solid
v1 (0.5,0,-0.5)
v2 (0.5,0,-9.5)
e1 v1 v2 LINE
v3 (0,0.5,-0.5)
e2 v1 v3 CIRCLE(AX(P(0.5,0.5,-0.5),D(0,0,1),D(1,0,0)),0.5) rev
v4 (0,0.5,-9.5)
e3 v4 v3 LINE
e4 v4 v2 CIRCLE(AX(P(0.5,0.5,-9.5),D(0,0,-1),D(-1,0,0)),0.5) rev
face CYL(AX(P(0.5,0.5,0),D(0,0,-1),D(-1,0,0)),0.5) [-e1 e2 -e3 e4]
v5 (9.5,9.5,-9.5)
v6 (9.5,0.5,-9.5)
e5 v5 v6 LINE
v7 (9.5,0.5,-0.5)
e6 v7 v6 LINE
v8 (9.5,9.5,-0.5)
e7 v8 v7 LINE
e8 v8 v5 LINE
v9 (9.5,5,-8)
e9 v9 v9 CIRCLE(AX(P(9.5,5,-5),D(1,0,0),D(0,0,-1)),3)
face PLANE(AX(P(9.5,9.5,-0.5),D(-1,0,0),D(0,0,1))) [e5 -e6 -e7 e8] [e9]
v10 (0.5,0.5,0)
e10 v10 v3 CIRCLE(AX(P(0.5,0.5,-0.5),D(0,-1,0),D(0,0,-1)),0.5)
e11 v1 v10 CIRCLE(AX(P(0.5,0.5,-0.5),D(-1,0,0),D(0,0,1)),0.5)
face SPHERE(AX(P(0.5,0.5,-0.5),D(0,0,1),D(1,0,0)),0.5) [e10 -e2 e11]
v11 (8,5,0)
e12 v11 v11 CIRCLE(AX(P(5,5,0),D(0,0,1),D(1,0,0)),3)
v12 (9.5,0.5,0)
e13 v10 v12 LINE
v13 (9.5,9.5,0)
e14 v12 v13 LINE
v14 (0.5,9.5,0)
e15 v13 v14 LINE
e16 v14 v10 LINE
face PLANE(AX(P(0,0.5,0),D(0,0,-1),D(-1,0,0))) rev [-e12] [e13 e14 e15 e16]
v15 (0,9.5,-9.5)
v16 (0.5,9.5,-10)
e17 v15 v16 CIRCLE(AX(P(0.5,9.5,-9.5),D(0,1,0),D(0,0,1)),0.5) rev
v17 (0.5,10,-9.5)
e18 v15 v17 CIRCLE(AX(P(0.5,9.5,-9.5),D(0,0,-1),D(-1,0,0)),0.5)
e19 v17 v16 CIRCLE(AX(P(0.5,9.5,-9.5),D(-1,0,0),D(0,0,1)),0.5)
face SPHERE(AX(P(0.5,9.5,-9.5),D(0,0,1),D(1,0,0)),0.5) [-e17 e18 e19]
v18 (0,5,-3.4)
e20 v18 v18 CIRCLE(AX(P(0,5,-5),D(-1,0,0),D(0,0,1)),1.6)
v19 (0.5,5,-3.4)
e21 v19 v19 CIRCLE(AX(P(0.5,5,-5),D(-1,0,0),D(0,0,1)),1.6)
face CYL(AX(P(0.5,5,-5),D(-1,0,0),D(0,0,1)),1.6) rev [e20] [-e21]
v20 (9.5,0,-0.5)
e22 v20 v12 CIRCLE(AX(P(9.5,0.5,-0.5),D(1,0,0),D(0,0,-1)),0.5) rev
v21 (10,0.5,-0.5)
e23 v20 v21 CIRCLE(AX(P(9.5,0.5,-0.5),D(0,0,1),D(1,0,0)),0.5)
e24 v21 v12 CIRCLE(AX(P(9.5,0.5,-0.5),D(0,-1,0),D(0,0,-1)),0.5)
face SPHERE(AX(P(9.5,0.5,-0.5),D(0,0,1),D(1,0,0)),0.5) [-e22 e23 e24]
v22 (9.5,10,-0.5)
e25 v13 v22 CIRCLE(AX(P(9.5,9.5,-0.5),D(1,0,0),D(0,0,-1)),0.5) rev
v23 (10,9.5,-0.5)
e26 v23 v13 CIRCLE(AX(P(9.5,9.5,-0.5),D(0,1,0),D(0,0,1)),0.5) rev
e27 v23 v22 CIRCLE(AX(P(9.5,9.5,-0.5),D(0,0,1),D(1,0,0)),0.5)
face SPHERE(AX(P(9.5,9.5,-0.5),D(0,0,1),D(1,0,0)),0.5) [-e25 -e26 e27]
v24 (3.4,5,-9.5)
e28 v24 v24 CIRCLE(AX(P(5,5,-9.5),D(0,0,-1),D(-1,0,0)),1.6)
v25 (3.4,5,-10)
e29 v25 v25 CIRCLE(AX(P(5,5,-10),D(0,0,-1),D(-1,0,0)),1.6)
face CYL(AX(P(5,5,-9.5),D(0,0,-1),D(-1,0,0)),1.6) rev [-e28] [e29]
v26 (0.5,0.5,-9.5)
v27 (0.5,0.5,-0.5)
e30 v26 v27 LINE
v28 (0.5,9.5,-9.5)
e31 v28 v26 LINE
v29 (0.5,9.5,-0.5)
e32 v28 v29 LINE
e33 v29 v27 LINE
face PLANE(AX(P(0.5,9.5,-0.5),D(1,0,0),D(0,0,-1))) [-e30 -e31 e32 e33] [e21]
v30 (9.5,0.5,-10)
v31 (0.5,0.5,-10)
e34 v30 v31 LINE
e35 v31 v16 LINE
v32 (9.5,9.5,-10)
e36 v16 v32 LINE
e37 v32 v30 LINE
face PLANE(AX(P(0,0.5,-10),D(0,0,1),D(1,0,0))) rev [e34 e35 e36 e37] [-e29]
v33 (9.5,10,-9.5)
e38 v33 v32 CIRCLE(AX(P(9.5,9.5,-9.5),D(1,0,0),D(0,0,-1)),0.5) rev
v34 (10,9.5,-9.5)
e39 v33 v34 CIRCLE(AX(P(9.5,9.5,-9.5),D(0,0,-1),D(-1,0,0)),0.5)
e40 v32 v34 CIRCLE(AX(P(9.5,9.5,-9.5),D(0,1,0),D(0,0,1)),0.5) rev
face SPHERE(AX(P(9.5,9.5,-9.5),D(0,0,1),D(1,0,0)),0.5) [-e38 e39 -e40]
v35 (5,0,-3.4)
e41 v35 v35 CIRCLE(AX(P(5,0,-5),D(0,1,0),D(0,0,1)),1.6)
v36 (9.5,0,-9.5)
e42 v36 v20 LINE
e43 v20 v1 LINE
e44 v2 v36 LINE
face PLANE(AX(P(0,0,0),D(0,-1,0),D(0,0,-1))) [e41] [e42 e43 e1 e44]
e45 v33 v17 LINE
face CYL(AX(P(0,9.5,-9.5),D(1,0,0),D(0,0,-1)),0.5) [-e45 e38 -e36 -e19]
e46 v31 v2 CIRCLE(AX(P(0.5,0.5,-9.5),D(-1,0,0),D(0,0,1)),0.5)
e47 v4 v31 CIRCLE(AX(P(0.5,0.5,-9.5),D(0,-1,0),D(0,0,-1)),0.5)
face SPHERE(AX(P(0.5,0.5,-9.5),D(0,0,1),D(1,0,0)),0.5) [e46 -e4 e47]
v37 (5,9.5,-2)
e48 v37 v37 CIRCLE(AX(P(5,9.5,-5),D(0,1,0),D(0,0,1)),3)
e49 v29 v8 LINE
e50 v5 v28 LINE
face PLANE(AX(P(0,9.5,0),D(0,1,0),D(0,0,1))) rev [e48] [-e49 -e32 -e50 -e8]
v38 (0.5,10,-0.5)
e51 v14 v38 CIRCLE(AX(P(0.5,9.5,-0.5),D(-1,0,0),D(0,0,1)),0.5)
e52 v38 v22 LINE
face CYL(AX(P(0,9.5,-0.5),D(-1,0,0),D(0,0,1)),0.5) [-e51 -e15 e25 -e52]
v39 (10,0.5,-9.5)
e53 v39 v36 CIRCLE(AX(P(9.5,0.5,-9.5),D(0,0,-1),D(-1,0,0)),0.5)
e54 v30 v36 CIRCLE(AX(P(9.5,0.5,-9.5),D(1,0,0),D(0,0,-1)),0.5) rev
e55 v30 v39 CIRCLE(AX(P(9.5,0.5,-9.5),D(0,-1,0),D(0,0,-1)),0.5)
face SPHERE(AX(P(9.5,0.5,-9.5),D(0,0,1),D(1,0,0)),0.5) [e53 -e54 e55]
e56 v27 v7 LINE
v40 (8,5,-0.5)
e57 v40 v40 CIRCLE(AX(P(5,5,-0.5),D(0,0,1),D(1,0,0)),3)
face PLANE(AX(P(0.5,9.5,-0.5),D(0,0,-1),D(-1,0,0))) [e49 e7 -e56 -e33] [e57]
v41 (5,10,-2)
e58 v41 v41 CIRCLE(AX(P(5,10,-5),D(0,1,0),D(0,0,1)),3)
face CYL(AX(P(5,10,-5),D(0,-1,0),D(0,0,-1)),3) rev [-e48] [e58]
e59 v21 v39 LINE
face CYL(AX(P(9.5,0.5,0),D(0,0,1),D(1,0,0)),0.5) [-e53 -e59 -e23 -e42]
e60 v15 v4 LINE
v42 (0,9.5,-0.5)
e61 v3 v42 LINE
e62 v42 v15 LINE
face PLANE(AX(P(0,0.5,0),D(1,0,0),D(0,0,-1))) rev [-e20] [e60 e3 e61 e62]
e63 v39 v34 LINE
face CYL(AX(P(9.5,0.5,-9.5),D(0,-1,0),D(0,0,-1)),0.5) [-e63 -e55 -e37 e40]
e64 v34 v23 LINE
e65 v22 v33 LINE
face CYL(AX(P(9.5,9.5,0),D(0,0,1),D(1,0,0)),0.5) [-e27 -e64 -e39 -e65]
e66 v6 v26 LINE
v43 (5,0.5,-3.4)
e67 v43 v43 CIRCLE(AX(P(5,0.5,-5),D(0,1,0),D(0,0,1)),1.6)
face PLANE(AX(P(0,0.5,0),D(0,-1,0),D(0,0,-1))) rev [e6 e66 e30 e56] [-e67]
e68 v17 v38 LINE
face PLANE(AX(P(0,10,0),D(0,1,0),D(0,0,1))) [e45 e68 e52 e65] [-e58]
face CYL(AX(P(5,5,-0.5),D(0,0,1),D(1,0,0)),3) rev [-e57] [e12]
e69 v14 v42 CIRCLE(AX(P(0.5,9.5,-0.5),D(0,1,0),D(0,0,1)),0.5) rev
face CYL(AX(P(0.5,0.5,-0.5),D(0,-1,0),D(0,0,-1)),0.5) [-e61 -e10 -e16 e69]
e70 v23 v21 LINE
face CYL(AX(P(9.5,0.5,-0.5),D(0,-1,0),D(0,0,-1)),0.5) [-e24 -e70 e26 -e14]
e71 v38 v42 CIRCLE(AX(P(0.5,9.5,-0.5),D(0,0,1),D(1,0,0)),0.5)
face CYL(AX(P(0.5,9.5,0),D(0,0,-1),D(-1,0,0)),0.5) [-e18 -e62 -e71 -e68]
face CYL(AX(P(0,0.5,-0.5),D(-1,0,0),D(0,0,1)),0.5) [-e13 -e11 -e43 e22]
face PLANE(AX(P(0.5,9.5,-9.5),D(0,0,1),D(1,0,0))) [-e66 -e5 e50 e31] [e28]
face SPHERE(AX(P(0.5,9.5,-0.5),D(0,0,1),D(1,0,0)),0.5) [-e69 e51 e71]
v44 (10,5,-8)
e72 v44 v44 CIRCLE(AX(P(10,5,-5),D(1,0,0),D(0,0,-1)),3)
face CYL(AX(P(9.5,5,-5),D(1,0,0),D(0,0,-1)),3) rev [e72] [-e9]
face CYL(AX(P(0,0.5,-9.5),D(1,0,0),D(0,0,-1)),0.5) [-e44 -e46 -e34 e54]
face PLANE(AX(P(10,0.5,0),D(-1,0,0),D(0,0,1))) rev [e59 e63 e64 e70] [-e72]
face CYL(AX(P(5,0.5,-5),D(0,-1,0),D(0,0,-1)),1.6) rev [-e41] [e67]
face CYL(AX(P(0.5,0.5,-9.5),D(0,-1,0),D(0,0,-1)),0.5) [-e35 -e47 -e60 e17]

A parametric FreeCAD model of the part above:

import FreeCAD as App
import Part
import Sketcher

V = App.Vector
Q = App.Units.Quantity


def edges_at(feature, points):
    """Names of the edges that pass closest to the given points."""
    edges = feature.Shape.Edges
    near = lambda p: min(range(len(edges)), key=lambda i: edges[i].distToShape(Part.Vertex(*p))[0])
    return sorted({f"Edge{near(p) + 1}" for p in points})


def add_polygon(sketch, points):
    """Adds a closed chain of lines whose ends are joined by coincident constraints."""
    first, n = sketch.GeometryCount, len(points)
    for a, b in zip(points, points[1:] + points[:1]):
        sketch.addGeometry(Part.LineSegment(App.Vector(*a, 0), App.Vector(*b, 0)), False)
    for i in range(n):
        sketch.addConstraint(Sketcher.Constraint("Coincident", first + i, 2, first + (i + 1) % n, 1))

doc = App.newDocument("Part")
body = doc.addObject("PartDesign::Body", "Body")

sketch1 = body.newObject("Sketcher::SketchObject", "Sketch")
sketch1.AttachmentSupport = (doc.getObject("XZ_Plane"), [""])
sketch1.MapMode = "FlatFace"
add_polygon(sketch1, [(0, -10), (0, 0), (10, 0), (10, -10)])
sketch1.addGeometry(Part.Circle(V(5, -5, 0), V(0, 0, 1), 1.6), False)
sketch1.addConstraint(Sketcher.Constraint("Vertical", 0))
sketch1.addConstraint(Sketcher.Constraint("Horizontal", 1))
sketch1.addConstraint(Sketcher.Constraint("Vertical", 2))
sketch1.addConstraint(Sketcher.Constraint("Horizontal", 3))
sketch1.addConstraint(Sketcher.Constraint("Coincident", 0, 2, -1, 1))
sketch1.addConstraint(Sketcher.Constraint("Equal", 3, 0))
sketch1.addConstraint(Sketcher.Constraint("Diameter", 4, Q("3.2 mm")))
sketch1.addConstraint(Sketcher.Constraint("DistanceX", 1, 1, 1, 2, Q("10 mm")))
sketch1.addConstraint(Sketcher.Constraint("DistanceX", -1, 1, 4, 3, Q("5 mm")))
sketch1.addConstraint(Sketcher.Constraint("DistanceY", 4, 3, -1, 1, Q("5 mm")))
pad1 = body.newObject("PartDesign::Pad", "Pad")
pad1.Profile = sketch1
pad1.Length = 0.5
pad1.Reversed = True

sketch2 = body.newObject("Sketcher::SketchObject", "Sketch001")
sketch2.AttachmentSupport = (doc.getObject("XZ_Plane"), [""])
sketch2.MapMode = "FlatFace"
sketch2.AttachmentOffset = App.Placement(V(0, 0, -0.5), App.Rotation())
add_polygon(sketch2, [(0, -10), (0, 0), (10, 0), (10, -10)])
add_polygon(sketch2, [(10, 0), (0, 0), (0, -10), (10, -10)])
sketch2.addConstraint(Sketcher.Constraint("Vertical", 0))
sketch2.addConstraint(Sketcher.Constraint("Horizontal", 1))
sketch2.addConstraint(Sketcher.Constraint("Vertical", 2))
sketch2.addConstraint(Sketcher.Constraint("Horizontal", 3))
sketch2.addConstraint(Sketcher.Constraint("Horizontal", 4))
sketch2.addConstraint(Sketcher.Constraint("Vertical", 5))
sketch2.addConstraint(Sketcher.Constraint("Horizontal", 6))
sketch2.addConstraint(Sketcher.Constraint("Vertical", 7))
sketch2.addConstraint(Sketcher.Constraint("Coincident", 0, 2, -1, 1))
sketch2.addConstraint(Sketcher.Constraint("Equal", 3, 0))
sketch2.addConstraint(Sketcher.Constraint("Equal", 6, 5))
sketch2.addConstraint(Sketcher.Constraint("DistanceX", 1, 1, 1, 2, Q("10 mm")))
sketch2.addConstraint(Sketcher.Constraint("DistanceX", 4, 2, 4, 1, Q("9 mm")))
sketch2.addConstraint(Sketcher.Constraint("DistanceX", -1, 1, 4, 2, Q("0.5 mm")))
sketch2.addConstraint(Sketcher.Constraint("DistanceY", 4, 2, -1, 1, Q("0.5 mm")))
pad2 = body.newObject("PartDesign::Pad", "Pad001")
pad2.Profile = sketch2
pad2.Length = 9
pad2.Reversed = True

sketch3 = body.newObject("Sketcher::SketchObject", "Sketch002")
sketch3.AttachmentSupport = (doc.getObject("XZ_Plane"), [""])
sketch3.MapMode = "FlatFace"
sketch3.AttachmentOffset = App.Placement(V(0, 0, -9.5), App.Rotation())
add_polygon(sketch3, [(0, -10), (0, 0), (10, 0), (10, -10)])
sketch3.addGeometry(Part.Circle(V(5, -5, 0), V(0, 0, 1), 3), False)
sketch3.addConstraint(Sketcher.Constraint("Vertical", 0))
sketch3.addConstraint(Sketcher.Constraint("Horizontal", 1))
sketch3.addConstraint(Sketcher.Constraint("Vertical", 2))
sketch3.addConstraint(Sketcher.Constraint("Horizontal", 3))
sketch3.addConstraint(Sketcher.Constraint("Coincident", 0, 2, -1, 1))
sketch3.addConstraint(Sketcher.Constraint("Equal", 3, 0))
sketch3.addConstraint(Sketcher.Constraint("Diameter", 4, Q("6 mm")))
sketch3.addConstraint(Sketcher.Constraint("DistanceX", 1, 1, 1, 2, Q("10 mm")))
sketch3.addConstraint(Sketcher.Constraint("DistanceX", -1, 1, 4, 3, Q("5 mm")))
sketch3.addConstraint(Sketcher.Constraint("DistanceY", 4, 3, -1, 1, Q("5 mm")))
pad3 = body.newObject("PartDesign::Pad", "Pad002")
pad3.Profile = sketch3
pad3.Length = 0.5
pad3.Reversed = True

sketch4 = body.newObject("Sketcher::SketchObject", "Sketch003")
sketch4.AttachmentSupport = (doc.getObject("YZ_Plane"), [""])
sketch4.MapMode = "FlatFace"
sketch4.AttachmentOffset = App.Placement(V(0, 0, 10), App.Rotation())
sketch4.addGeometry(Part.Circle(V(5, -5, 0), V(0, 0, 1), 3), False)
sketch4.addConstraint(Sketcher.Constraint("Diameter", 0, Q("6 mm")))
sketch4.addConstraint(Sketcher.Constraint("DistanceX", -1, 1, 0, 3, Q("5 mm")))
sketch4.addConstraint(Sketcher.Constraint("DistanceY", 0, 3, -1, 1, Q("5 mm")))
pocket1 = body.newObject("PartDesign::Pocket", "Pocket")
pocket1.Profile = sketch4
pocket1.Length = 0.5

sketch5 = body.newObject("Sketcher::SketchObject", "Sketch004")
sketch5.AttachmentSupport = (doc.getObject("XY_Plane"), [""])
sketch5.MapMode = "FlatFace"
sketch5.addGeometry(Part.Circle(V(5, 5, 0), V(0, 0, 1), 3), False)
sketch5.addConstraint(Sketcher.Constraint("Diameter", 0, Q("6 mm")))
sketch5.addConstraint(Sketcher.Constraint("DistanceX", -1, 1, 0, 3, Q("5 mm")))
sketch5.addConstraint(Sketcher.Constraint("DistanceY", -1, 1, 0, 3, Q("5 mm")))
pocket2 = body.newObject("PartDesign::Pocket", "Pocket001")
pocket2.Profile = sketch5
pocket2.Length = 0.5

sketch6 = body.newObject("Sketcher::SketchObject", "Sketch005")
sketch6.AttachmentSupport = (doc.getObject("YZ_Plane"), [""])
sketch6.MapMode = "FlatFace"
sketch6.addGeometry(Part.Circle(V(5, -5, 0), V(0, 0, 1), 1.6), False)
sketch6.addConstraint(Sketcher.Constraint("Diameter", 0, Q("3.2 mm")))
sketch6.addConstraint(Sketcher.Constraint("DistanceX", -1, 1, 0, 3, Q("5 mm")))
sketch6.addConstraint(Sketcher.Constraint("DistanceY", 0, 3, -1, 1, Q("5 mm")))
pocket3 = body.newObject("PartDesign::Pocket", "Pocket002")
pocket3.Profile = sketch6
pocket3.Length = 0.5
pocket3.Reversed = True

sketch7 = body.newObject("Sketcher::SketchObject", "Sketch006")
sketch7.AttachmentSupport = (doc.getObject("XY_Plane"), [""])
sketch7.MapMode = "FlatFace"
sketch7.AttachmentOffset = App.Placement(V(0, 0, -10), App.Rotation())
sketch7.addGeometry(Part.Circle(V(5, 5, 0), V(0, 0, 1), 1.6), False)
sketch7.addConstraint(Sketcher.Constraint("Diameter", 0, Q("3.2 mm")))
sketch7.addConstraint(Sketcher.Constraint("DistanceX", -1, 1, 0, 3, Q("5 mm")))
sketch7.addConstraint(Sketcher.Constraint("DistanceY", -1, 1, 0, 3, Q("5 mm")))
pocket4 = body.newObject("PartDesign::Pocket", "Pocket003")
pocket4.Profile = sketch7
pocket4.Length = 0.5
pocket4.Reversed = True
doc.recompute()

fillet = body.newObject("PartDesign::Fillet", "Fillet")
fillet.Base = (pocket4, edges_at(pocket4, [
    (0, 10, -5),
    (5, 10, 0),
    (10, 10, -5),
    (5, 10, -10),
    (5, 0, -10),
    (10, 0, -5),
    (5, 0, 0),
    (0, 0, -5),
    (0, 5, -10),
    (10, 5, -10),
    (10, 5, 0),
    (0, 5, 0),
]))
fillet.Radius = 0.5

doc.recompute()
